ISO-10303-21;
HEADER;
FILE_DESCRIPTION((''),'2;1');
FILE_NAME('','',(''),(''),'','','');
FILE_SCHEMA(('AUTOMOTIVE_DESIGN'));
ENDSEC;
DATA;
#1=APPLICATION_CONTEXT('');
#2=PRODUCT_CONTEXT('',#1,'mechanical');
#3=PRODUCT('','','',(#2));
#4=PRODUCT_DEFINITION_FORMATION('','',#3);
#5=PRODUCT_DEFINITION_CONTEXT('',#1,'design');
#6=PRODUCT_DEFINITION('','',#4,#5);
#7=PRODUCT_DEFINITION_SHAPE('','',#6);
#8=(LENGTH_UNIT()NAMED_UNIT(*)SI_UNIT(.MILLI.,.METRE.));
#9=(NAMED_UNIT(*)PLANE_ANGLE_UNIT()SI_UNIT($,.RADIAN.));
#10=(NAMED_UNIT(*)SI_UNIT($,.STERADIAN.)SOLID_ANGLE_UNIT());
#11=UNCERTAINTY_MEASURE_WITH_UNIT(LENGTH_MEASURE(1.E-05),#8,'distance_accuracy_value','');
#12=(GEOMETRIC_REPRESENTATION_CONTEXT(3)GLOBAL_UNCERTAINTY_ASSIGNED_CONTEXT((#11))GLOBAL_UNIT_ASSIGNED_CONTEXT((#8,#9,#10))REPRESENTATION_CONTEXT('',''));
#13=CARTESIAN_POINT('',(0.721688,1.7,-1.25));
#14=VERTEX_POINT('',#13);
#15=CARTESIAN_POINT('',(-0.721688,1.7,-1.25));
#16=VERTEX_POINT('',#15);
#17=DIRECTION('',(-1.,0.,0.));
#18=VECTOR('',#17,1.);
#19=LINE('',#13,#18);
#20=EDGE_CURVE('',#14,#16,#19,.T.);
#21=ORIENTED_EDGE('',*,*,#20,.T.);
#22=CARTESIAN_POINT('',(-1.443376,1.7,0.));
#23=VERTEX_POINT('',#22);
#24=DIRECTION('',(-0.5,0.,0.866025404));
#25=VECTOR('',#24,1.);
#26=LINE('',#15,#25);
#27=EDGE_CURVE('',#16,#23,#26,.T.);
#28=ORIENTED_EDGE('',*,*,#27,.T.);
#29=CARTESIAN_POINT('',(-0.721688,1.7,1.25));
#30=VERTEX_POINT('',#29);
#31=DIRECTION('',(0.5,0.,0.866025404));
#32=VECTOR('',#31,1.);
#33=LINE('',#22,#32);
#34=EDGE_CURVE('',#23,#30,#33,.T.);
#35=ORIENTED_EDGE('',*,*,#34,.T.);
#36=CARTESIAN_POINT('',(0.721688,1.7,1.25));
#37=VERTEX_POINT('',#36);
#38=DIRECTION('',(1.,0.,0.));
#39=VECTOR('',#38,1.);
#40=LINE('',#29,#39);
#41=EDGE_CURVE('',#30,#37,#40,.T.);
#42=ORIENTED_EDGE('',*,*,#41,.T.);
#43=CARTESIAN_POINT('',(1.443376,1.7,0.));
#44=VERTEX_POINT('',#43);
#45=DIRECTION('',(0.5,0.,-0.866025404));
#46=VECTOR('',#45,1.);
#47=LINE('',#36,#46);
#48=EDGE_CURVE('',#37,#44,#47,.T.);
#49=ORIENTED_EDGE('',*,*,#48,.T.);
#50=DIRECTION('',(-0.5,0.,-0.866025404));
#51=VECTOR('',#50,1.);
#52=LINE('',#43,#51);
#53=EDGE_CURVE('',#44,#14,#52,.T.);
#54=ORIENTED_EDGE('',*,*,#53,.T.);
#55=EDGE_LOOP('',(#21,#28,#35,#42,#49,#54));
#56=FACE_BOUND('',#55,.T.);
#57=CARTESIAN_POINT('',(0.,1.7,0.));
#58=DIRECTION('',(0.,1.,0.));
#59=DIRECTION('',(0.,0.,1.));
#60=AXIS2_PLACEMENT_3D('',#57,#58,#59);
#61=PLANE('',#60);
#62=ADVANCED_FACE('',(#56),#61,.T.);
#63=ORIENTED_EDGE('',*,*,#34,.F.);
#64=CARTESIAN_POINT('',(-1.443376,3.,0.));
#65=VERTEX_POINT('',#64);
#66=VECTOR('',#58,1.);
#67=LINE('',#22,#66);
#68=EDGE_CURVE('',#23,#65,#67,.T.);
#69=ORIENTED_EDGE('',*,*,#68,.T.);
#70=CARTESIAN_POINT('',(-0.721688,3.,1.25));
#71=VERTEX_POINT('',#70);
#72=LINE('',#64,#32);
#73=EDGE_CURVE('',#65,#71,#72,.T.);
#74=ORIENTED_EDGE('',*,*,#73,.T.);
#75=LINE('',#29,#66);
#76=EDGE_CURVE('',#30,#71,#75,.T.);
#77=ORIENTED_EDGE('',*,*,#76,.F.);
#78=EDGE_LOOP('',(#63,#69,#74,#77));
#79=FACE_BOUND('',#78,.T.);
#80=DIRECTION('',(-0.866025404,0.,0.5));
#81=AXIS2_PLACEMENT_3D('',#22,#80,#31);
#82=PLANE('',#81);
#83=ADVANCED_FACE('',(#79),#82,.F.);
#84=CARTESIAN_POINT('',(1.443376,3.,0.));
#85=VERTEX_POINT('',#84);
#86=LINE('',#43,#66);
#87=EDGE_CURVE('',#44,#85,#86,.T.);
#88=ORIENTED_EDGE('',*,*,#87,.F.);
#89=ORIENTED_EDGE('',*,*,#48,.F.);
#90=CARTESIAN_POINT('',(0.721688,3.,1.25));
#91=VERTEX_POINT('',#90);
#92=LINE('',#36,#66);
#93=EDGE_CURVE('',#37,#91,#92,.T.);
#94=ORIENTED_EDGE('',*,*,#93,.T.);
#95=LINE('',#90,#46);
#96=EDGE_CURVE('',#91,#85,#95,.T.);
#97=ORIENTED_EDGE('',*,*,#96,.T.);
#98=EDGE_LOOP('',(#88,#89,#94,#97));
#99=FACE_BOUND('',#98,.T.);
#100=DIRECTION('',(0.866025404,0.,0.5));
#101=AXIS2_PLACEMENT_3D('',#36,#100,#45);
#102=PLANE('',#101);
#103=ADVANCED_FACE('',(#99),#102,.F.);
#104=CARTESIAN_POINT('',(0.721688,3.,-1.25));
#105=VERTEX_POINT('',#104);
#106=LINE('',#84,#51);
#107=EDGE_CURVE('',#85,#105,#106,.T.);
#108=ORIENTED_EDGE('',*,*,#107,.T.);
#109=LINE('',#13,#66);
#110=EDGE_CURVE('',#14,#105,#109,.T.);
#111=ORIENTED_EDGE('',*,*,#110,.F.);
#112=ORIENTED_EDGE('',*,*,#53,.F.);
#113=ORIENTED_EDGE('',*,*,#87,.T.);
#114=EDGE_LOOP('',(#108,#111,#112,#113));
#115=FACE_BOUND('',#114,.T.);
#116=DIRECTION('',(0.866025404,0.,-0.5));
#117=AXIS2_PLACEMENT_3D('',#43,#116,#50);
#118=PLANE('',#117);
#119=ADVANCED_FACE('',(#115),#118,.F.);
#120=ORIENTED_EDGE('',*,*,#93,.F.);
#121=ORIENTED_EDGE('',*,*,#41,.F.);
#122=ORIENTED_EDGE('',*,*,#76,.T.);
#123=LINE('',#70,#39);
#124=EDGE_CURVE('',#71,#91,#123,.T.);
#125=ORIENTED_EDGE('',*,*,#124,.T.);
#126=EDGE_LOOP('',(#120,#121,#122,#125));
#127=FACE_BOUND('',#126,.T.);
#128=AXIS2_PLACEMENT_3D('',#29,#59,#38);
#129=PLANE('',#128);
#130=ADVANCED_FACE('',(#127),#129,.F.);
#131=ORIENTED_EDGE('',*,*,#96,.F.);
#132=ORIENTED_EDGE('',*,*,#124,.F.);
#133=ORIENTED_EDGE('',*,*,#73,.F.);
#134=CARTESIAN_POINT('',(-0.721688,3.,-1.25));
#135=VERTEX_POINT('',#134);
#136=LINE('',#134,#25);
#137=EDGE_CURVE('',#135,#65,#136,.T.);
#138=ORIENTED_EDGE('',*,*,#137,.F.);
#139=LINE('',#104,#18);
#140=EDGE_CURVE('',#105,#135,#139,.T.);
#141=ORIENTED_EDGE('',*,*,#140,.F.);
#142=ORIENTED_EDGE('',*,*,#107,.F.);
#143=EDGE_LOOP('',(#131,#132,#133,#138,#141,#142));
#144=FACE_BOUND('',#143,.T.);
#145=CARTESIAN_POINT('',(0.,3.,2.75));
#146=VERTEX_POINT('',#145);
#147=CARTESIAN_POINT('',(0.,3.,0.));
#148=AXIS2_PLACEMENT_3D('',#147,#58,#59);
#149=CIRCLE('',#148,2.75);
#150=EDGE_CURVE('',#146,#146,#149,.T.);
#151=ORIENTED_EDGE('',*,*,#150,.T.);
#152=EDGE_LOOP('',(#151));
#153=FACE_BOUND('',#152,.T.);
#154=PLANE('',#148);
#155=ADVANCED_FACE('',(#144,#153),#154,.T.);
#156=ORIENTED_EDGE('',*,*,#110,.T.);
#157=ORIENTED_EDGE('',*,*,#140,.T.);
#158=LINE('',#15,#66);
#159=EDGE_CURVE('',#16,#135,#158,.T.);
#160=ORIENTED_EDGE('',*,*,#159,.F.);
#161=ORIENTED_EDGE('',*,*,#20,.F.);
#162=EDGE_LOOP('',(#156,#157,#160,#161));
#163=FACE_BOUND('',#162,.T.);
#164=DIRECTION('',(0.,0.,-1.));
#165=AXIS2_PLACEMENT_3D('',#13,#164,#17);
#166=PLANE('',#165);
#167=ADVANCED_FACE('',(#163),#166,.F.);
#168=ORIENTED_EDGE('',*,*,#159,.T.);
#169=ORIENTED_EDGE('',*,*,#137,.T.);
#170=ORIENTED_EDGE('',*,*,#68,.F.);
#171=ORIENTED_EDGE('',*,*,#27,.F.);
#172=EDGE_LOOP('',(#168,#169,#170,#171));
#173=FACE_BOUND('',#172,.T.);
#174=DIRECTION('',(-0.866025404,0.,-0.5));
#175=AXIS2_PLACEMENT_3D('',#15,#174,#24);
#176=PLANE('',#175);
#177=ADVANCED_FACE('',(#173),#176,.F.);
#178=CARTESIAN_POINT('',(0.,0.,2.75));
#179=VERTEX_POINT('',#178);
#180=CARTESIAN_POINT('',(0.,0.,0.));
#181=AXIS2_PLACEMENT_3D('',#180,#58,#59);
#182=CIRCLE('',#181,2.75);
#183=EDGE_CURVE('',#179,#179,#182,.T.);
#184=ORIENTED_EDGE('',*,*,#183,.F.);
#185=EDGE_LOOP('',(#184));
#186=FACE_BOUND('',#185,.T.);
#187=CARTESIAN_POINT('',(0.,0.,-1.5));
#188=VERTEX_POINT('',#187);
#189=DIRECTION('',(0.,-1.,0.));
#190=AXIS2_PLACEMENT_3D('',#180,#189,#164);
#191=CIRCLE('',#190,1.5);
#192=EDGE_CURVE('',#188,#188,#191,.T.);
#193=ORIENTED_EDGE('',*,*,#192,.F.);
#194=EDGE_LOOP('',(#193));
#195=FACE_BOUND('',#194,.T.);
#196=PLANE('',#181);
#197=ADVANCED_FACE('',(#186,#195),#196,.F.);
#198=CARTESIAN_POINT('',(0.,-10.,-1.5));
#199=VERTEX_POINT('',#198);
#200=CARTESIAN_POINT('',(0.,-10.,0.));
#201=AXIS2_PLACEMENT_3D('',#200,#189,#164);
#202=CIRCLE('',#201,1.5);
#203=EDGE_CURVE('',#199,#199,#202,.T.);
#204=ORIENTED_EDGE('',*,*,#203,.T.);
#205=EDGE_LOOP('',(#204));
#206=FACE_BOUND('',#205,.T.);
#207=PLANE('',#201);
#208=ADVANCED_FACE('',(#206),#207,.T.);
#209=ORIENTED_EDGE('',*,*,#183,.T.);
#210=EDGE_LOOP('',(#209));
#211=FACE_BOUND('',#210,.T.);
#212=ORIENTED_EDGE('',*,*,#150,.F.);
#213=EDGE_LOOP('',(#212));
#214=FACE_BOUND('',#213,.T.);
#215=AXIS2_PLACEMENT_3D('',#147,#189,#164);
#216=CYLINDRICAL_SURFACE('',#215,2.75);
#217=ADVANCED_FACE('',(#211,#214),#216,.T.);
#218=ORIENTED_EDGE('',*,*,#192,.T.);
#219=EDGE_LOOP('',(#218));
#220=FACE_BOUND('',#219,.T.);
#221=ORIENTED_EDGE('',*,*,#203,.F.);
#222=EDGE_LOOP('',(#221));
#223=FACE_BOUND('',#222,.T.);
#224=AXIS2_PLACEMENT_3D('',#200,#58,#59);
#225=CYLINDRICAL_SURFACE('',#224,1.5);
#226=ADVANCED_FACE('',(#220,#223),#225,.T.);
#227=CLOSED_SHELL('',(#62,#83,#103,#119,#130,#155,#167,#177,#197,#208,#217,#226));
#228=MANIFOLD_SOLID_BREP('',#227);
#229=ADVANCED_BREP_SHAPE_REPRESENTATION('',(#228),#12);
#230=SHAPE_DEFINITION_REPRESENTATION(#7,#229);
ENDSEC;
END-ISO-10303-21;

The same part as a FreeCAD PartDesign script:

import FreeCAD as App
import Part
import Sketcher
from FreeCAD import Vector
Q = App.Units.Quantity


def add_polygon(sketch, points):
    """Adds a closed chain of lines whose ends are joined by coincident constraints."""
    first, n = sketch.GeometryCount, len(points)
    for a, b in zip(points, points[1:] + points[:1]):
        sketch.addGeometry(Part.LineSegment(App.Vector(*a, 0), App.Vector(*b, 0)), False)
    for i in range(n):
        sketch.addConstraint(Sketcher.Constraint("Coincident", first + i, 2, first + (i + 1) % n, 1))

doc = App.newDocument("Part")
body = doc.addObject("PartDesign::Body", "Body")

# Sketch on XZ plane
sketch1 = doc.addObject("Sketcher::SketchObject", "Sketch")
body.addObject(sketch1)
sketch1.AttachmentSupport = (doc.XZ_Plane, [""])
sketch1.MapMode = "FlatFace"
sketch1.addGeometry(Part.Circle(Vector(0, 0, 0), Vector(0, 0, 1), 2.8), False)
sketch1.addConstraint(Sketcher.Constraint("Coincident", 0, 3, -1, 1))
sketch1.addConstraint(Sketcher.Constraint("Diameter", 0, Q("5.5 mm")))
pad1 = doc.addObject("PartDesign::Pad", "Pad")
body.addObject(pad1)
pad1.Profile = sketch1
pad1.Length = 3
pad1.Reversed = True

# Sketch on XZ plane
sketch2 = doc.addObject("Sketcher::SketchObject", "Sketch001")
body.addObject(sketch2)
sketch2.AttachmentSupport = (doc.XZ_Plane, [""])
sketch2.MapMode = "FlatFace"
sketch2.AttachmentOffset = App.Placement(Vector(0, 0, -3), App.Rotation())
add_polygon(sketch2, [(1.4, 0), (0.7, -1.2), (-0.7, -1.2), (-1.4, 0), (-0.7, 1.2), (0.7, 1.2)])  # lines 0-5
sketch2.addConstraint(Sketcher.Constraint("Horizontal", 1))
sketch2.addConstraint(Sketcher.Constraint("Horizontal", 4))
sketch2.addConstraint(Sketcher.Constraint("Symmetric", 0, 2, 3, 2, -1, 1))
sketch2.addConstraint(Sketcher.Constraint("Symmetric", 2, 2, 5, 2, -1, 1))
sketch2.addConstraint(Sketcher.Constraint("PointOnObject", 2, 2, -1))
sketch2.addConstraint(Sketcher.Constraint("Parallel", 2, 5))
sketch2.addConstraint(Sketcher.Constraint("Vertical", 1, 2, 3, 2))
sketch2.addConstraint(Sketcher.Constraint("Angle", 0, Q("-120 deg")))
sketch2.addConstraint(Sketcher.Constraint("DistanceY", 1, 2, 3, 2, Q("2.5 mm")))
sketch2.addConstraint(Sketcher.Constraint("DistanceX", 1, 2, 1, 1, Q("1.443376 mm")))
pocket1 = doc.addObject("PartDesign::Pocket", "Pocket")
body.addObject(pocket1)
pocket1.Profile = sketch2
pocket1.Length = 1.3
pocket1.Reversed = True

# Sketch on XZ plane
sketch3 = doc.addObject("Sketcher::SketchObject", "Sketch002")
body.addObject(sketch3)
sketch3.AttachmentSupport = (doc.XZ_Plane, [""])
sketch3.MapMode = "FlatFace"
sketch3.addGeometry(Part.Circle(Vector(0, 0, 0), Vector(0, 0, 1), 1.5), False)
sketch3.addConstraint(Sketcher.Constraint("Coincident", 0, 3, -1, 1))
sketch3.addConstraint(Sketcher.Constraint("Diameter", 0, Q("3 mm")))
pad2 = doc.addObject("PartDesign::Pad", "Pad001")
body.addObject(pad2)
pad2.Profile = sketch3
pad2.Length = 10

doc.recompute()
